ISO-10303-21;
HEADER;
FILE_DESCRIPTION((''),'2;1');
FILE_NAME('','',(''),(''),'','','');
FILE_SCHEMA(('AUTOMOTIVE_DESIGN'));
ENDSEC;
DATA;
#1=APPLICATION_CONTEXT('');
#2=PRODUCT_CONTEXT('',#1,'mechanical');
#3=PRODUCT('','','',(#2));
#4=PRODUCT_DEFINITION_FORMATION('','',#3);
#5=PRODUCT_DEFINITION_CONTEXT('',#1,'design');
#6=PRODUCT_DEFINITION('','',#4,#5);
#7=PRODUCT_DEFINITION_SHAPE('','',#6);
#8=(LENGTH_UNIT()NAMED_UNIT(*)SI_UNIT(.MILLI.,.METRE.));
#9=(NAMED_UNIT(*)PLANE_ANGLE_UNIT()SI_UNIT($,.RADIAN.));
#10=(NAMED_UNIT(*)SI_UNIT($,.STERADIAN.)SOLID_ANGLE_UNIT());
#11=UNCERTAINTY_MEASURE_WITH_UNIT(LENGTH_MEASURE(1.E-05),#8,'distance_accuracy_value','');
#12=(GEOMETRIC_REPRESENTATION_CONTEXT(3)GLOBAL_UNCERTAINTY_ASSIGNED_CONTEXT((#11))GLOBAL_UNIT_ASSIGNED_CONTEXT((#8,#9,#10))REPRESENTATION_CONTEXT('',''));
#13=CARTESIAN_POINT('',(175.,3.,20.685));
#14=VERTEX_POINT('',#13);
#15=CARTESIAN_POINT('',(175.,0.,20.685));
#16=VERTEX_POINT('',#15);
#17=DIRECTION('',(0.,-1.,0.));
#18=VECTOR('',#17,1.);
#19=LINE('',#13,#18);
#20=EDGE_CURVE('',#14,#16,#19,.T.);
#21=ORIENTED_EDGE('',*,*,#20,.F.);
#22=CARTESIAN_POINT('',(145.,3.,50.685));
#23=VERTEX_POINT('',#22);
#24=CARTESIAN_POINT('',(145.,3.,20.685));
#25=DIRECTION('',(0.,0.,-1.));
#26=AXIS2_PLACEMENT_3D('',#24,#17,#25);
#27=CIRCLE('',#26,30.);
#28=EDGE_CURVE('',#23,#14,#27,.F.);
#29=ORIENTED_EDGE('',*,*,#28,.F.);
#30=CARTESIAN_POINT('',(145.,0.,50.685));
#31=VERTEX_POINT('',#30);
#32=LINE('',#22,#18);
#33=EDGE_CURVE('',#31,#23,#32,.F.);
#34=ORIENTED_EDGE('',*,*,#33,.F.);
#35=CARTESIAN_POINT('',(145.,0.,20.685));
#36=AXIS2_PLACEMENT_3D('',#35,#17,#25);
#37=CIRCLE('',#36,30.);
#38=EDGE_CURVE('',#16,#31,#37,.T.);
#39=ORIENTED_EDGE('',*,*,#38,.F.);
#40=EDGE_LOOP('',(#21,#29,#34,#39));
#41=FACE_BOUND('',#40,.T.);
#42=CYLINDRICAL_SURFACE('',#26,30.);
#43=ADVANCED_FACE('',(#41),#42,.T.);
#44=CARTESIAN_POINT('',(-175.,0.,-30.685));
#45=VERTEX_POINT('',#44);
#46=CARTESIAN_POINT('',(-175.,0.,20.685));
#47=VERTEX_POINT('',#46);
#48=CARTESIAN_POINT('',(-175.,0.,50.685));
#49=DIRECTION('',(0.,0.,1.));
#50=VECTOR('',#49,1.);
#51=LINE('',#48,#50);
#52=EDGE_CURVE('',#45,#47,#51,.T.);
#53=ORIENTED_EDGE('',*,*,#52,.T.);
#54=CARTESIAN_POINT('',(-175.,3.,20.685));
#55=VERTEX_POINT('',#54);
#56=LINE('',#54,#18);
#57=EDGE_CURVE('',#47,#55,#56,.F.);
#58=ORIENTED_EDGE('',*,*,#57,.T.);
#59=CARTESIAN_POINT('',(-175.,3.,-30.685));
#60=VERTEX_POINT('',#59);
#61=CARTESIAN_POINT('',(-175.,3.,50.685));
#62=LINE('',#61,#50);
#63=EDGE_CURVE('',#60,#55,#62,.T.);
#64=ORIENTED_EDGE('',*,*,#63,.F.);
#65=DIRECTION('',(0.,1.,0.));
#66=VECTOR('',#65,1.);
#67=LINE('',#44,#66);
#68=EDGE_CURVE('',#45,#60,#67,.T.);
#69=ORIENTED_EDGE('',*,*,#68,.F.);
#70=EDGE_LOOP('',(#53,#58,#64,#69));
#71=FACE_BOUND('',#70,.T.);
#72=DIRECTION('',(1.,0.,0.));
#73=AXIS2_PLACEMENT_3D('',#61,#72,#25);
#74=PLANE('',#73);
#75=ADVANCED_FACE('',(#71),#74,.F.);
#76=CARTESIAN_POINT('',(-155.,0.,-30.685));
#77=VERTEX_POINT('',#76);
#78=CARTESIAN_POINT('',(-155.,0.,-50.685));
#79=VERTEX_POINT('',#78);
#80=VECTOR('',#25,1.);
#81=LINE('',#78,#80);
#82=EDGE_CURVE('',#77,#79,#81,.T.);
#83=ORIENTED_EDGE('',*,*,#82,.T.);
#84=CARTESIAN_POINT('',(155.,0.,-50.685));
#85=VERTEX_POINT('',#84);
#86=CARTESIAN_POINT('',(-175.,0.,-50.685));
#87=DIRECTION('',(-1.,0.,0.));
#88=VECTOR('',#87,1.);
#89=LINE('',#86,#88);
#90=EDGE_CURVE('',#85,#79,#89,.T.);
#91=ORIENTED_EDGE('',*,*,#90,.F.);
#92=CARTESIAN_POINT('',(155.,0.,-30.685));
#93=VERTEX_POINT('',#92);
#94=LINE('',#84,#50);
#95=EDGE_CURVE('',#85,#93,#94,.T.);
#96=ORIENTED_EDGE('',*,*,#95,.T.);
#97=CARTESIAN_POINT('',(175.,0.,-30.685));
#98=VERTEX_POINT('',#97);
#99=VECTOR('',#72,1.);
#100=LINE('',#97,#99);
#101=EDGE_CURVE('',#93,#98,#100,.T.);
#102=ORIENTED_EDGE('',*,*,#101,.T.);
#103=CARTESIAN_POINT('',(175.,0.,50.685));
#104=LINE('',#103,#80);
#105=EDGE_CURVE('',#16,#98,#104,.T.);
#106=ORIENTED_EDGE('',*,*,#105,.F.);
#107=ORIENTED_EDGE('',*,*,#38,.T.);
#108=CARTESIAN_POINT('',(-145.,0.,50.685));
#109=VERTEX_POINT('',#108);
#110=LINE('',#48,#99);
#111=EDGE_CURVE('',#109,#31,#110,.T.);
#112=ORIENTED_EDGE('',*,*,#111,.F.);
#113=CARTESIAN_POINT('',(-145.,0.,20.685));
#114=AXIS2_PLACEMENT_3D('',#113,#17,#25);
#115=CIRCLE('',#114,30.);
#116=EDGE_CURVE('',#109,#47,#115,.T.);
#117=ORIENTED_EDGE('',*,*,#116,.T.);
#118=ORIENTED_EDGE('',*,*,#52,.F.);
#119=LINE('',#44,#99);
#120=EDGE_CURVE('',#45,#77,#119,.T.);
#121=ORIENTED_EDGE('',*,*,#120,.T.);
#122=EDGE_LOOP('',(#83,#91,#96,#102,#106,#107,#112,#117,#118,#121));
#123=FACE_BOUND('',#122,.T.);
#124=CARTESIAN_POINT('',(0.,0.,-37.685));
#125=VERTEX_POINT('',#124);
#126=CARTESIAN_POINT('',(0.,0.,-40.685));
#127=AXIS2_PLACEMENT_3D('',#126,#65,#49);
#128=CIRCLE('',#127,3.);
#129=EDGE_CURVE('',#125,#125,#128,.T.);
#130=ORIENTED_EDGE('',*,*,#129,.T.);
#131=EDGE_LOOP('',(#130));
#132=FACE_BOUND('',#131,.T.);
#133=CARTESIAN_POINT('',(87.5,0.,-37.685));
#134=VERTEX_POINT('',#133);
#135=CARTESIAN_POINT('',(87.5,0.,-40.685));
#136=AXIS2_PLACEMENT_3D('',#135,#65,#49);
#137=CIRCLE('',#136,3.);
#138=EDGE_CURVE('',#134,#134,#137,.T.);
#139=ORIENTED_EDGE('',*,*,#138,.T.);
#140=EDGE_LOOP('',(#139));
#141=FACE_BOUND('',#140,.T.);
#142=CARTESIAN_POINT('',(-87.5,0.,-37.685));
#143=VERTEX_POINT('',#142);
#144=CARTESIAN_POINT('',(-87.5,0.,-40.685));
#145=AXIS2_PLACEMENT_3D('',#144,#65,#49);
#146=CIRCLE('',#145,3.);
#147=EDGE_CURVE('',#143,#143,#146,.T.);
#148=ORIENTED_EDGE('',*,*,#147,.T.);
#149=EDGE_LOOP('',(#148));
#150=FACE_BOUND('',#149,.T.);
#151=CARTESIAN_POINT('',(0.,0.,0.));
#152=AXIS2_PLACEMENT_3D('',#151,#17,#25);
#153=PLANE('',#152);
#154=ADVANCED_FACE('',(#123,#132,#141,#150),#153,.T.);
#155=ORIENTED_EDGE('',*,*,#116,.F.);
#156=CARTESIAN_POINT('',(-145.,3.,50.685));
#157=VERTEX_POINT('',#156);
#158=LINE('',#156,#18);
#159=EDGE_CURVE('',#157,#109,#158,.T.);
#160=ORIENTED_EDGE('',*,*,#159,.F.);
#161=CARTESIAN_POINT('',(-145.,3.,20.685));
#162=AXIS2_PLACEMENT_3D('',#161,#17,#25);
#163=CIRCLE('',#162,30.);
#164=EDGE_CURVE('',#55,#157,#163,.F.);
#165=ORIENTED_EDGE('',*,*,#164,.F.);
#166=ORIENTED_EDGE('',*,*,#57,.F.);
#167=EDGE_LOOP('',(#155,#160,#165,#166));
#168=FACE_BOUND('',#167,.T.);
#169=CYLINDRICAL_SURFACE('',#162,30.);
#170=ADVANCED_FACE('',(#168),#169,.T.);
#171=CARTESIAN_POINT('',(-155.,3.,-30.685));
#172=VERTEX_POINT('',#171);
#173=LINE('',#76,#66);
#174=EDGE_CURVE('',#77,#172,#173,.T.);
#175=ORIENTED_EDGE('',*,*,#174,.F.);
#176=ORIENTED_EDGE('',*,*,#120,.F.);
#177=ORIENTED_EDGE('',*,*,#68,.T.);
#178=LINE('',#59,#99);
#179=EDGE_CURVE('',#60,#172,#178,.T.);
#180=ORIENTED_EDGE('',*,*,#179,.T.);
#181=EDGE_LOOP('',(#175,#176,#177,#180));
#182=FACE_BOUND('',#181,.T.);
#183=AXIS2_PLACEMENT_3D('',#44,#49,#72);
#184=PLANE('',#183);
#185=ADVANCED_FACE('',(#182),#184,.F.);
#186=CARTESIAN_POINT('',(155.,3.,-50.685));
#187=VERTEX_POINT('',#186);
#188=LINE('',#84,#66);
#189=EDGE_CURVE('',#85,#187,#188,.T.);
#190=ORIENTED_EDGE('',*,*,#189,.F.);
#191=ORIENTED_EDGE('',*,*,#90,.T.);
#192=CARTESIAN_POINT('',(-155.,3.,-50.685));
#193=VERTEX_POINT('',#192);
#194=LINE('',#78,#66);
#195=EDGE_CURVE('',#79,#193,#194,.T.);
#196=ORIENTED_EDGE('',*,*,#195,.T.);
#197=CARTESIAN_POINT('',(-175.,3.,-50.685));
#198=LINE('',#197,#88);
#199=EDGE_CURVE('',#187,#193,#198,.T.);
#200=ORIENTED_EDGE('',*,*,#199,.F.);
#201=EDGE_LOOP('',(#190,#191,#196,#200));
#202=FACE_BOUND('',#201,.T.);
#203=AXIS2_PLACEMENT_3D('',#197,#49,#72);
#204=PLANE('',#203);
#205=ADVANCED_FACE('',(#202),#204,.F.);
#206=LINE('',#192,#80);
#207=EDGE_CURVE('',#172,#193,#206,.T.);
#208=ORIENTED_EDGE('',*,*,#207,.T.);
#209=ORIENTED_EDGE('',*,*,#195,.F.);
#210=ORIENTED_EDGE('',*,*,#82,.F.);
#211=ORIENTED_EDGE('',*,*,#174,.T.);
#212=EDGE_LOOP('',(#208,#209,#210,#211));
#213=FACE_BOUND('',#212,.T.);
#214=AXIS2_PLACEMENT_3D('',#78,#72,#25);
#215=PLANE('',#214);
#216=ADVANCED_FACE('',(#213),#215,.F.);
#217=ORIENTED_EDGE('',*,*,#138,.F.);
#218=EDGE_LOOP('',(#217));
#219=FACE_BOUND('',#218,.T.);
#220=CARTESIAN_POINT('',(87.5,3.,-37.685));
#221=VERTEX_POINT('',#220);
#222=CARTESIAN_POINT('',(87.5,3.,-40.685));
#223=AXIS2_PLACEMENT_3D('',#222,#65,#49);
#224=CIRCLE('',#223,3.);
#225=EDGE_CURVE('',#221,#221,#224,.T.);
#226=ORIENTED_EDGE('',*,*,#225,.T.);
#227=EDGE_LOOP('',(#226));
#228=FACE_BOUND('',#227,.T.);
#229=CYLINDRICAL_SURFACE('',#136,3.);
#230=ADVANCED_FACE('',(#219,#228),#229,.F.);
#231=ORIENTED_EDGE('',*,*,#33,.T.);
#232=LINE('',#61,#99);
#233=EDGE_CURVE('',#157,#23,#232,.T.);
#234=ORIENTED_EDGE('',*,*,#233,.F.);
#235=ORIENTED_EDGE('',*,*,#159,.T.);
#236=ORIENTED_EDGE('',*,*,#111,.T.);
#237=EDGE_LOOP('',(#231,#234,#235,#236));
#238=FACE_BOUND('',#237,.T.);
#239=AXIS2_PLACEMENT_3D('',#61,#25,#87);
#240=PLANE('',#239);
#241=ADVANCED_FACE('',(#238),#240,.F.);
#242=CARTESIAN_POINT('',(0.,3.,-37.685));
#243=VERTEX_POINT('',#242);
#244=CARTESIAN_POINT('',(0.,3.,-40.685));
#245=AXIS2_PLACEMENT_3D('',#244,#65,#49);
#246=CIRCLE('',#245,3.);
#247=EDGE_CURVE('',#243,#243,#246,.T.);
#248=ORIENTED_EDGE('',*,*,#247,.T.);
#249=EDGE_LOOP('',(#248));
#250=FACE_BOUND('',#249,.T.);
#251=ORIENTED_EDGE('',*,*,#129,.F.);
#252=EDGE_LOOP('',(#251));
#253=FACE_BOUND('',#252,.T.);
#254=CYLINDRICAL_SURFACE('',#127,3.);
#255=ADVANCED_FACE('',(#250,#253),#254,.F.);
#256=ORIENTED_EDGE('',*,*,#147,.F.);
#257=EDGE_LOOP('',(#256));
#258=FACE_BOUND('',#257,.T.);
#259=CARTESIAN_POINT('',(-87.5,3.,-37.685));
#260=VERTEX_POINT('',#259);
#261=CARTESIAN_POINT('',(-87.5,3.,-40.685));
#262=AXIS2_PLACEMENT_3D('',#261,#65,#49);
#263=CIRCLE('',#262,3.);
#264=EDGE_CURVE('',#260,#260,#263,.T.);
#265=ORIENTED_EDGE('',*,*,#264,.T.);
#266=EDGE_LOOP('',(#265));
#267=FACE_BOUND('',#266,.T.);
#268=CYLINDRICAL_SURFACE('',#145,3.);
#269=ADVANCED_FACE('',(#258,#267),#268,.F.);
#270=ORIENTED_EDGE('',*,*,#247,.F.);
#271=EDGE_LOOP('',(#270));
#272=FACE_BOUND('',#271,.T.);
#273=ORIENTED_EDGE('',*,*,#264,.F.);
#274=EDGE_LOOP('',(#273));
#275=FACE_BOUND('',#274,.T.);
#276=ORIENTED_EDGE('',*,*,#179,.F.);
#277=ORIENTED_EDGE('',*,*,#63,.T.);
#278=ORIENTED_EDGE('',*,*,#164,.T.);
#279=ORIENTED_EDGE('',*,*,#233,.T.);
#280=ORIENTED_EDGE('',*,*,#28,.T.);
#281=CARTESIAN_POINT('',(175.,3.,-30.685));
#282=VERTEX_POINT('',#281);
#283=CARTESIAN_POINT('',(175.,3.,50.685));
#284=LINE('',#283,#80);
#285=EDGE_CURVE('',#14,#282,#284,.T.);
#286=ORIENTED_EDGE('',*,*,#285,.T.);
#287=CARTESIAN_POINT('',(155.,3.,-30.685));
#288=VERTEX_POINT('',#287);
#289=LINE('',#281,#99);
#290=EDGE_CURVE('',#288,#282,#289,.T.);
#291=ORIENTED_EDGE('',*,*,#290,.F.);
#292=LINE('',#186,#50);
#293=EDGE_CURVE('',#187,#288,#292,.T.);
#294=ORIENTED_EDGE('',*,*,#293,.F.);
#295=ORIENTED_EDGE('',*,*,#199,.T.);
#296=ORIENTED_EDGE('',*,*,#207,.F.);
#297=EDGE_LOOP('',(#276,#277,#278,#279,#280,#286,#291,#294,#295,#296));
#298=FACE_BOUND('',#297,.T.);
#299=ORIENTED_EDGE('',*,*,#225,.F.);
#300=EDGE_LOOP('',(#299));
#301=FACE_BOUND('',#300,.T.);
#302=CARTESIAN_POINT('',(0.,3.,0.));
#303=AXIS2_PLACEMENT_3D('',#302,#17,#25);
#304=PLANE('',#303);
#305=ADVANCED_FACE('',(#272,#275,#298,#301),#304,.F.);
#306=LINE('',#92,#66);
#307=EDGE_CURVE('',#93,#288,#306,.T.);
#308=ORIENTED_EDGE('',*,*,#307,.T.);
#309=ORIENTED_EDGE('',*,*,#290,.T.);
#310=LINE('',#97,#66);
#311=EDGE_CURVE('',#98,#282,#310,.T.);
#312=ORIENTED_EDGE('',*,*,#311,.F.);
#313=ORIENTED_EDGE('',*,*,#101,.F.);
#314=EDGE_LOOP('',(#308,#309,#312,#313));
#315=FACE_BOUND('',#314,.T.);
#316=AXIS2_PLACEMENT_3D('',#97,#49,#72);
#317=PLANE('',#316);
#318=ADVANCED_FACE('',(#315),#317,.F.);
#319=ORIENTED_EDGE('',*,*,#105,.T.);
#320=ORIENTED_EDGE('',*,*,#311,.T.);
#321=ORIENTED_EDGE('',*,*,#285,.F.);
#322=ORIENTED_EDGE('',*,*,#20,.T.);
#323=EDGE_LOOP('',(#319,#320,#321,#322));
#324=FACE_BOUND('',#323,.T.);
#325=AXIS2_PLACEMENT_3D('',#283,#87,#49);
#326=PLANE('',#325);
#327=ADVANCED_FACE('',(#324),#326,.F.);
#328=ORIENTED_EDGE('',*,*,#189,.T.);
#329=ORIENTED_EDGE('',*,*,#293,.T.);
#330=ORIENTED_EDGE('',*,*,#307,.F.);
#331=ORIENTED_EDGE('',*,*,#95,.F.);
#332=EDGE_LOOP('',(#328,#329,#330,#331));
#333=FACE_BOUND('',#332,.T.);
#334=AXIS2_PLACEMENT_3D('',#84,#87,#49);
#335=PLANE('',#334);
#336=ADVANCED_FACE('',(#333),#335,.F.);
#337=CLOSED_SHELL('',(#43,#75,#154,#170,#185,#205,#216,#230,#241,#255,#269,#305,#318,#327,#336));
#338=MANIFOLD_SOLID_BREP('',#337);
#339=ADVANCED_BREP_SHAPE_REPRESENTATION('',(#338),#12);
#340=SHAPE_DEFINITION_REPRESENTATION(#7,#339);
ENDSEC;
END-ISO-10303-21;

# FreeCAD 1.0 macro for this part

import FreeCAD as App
import Part
import Sketcher


def edges_at(feature, points):
    """Names of the edges that pass closest to the given points."""
    edges = feature.Shape.Edges
    near = lambda p: min(range(len(edges)), key=lambda i: edges[i].distToShape(Part.Vertex(*p))[0])
    return sorted({f"Edge{near(p) + 1}" for p in points})


def add_polygon(sketch, points):
    """Adds a closed chain of lines whose ends are joined by coincident constraints."""
    first, n = sketch.GeometryCount, len(points)
    for a, b in zip(points, points[1:] + points[:1]):
        sketch.addGeometry(Part.LineSegment(App.Vector(*a, 0), App.Vector(*b, 0)), False)
    for i in range(n):
        sketch.addConstraint(Sketcher.Constraint("Coincident", first + i, 2, first + (i + 1) % n, 1))

doc = App.newDocument("Part")
params = doc.addObject("Spreadsheet::Sheet", "Params")
for row, (alias, value) in enumerate([
    ("sketch1_width", "350 mm"),
    ("sketch1_height", "101.37 mm"),
    ("pad1_length", "3 mm"),
    ("sketch2_diameter", "6 mm"),
    ("sketch2_width", "20 mm"),
    ("fillet_radius", "30 mm"),
], start=1):
    params.set(f"A{row}", alias)
    params.set(f"B{row}", "=" + value)
    params.setAlias(f"B{row}", alias)

body = doc.addObject("PartDesign::Body", "Body")

# Sketch on XZ plane
sketch1 = body.newObject("Sketcher::SketchObject", "Sketch")
sketch1.AttachmentSupport = (doc.getObject("XZ_Plane"), [""])
sketch1.MapMode = "FlatFace"
add_polygon(sketch1, [(-175, -51), (-175, 51), (175, 51), (175, -51)])  # lines 0-3
sketch1.addConstraint([
    Sketcher.Constraint("Vertical", 0),
    Sketcher.Constraint("Horizontal", 1),
    Sketcher.Constraint("Vertical", 2),
    Sketcher.Constraint("Horizontal", 3),
    Sketcher.Constraint("Symmetric", 0, 2, 2, 2, -1, 1),
    Sketcher.Constraint("DistanceX", 1, 1, 1, 2, 350.0),
    Sketcher.Constraint("DistanceY", 0, 1, 0, 2, 101.37),
])
sketch1.setExpression("Constraints[9]", "Params.sketch1_width")
sketch1.setExpression("Constraints[10]", "Params.sketch1_height")
pad1 = body.newObject("PartDesign::Pad", "Pad")
pad1.Profile = sketch1
pad1.setExpression("Length", "Params.pad1_length")
pad1.Reversed = True

# Sketch on XZ plane
sketch2 = body.newObject("Sketcher::SketchObject", "Sketch001")
sketch2.AttachmentSupport = (doc.getObject("XZ_Plane"), [""])
sketch2.MapMode = "FlatFace"
sketch2.AttachmentOffset = App.Placement(App.Vector(0, 0, -3), App.Rotation())
sketch2.addGeometry(Part.Circle(App.Vector(-87.5, -40.7, 0), App.Vector(0, 0, 1), 3), False)  # 0
sketch2.addGeometry(Part.Circle(App.Vector(0, -40.7, 0), App.Vector(0, 0, 1), 3), False)  # 1
sketch2.addGeometry(Part.Circle(App.Vector(87.5, -40.7, 0), App.Vector(0, 0, 1), 3), False)  # 2
add_polygon(sketch2, [(-175, -50.7), (-175, -30.7), (-155, -30.7), (-155, -50.7)])  # lines 3-6
add_polygon(sketch2, [(155, -50.7), (155, -30.7), (175, -30.7), (175, -50.7)])  # lines 7-10
sketch2.addConstraint([
    Sketcher.Constraint("Vertical", 3),
    Sketcher.Constraint("Horizontal", 4),
    Sketcher.Constraint("Vertical", 5),
    Sketcher.Constraint("Horizontal", 6),
    Sketcher.Constraint("Vertical", 7),
    Sketcher.Constraint("Horizontal", 8),
    Sketcher.Constraint("Vertical", 9),
    Sketcher.Constraint("Horizontal", 10),
    Sketcher.Constraint("Equal", 0, 1),
    Sketcher.Constraint("Equal", 1, 2),
    Sketcher.Constraint("Symmetric", 0, 3, 2, 3, -2),
    Sketcher.Constraint("Symmetric", 4, 2, 7, 2, -2),
    Sketcher.Constraint("Symmetric", 6, 2, 9, 2, -2),
    Sketcher.Constraint("PointOnObject", 1, 3, -2),
    Sketcher.Constraint("Horizontal", 0, 3, 1, 3),
    Sketcher.Constraint("Equal", 10, 3),
    Sketcher.Constraint("Diameter", 0, 6.0),
    Sketcher.Constraint("DistanceX", 4, 1, 4, 2, 20.0),
    Sketcher.Constraint("DistanceX", 3, 2, -1, 1, 175.0),
    Sketcher.Constraint("DistanceX", 0, 3, 2, 3, 175.0),
    Sketcher.Constraint("DistanceY", 0, 3, 3, 2, 10.0),
    Sketcher.Constraint("DistanceY", 0, 3, -1, 1, 40.685),
])
sketch2.setExpression("Constraints[24]", "Params.sketch2_diameter")
sketch2.setExpression("Constraints[25]", "Params.sketch2_width")
pocket1 = body.newObject("PartDesign::Pocket", "Pocket")
pocket1.Profile = sketch2
pocket1.Type = "ThroughAll"
pocket1.Reversed = True
doc.recompute()

fillet = body.newObject("PartDesign::Fillet", "Fillet")
fillet.Base = (pocket1, edges_at(pocket1, [(175, 1.5, 50.685), (-175, 1.5, 50.685)]))
fillet.setExpression("Radius", "Params.fillet_radius")

doc.recompute()
